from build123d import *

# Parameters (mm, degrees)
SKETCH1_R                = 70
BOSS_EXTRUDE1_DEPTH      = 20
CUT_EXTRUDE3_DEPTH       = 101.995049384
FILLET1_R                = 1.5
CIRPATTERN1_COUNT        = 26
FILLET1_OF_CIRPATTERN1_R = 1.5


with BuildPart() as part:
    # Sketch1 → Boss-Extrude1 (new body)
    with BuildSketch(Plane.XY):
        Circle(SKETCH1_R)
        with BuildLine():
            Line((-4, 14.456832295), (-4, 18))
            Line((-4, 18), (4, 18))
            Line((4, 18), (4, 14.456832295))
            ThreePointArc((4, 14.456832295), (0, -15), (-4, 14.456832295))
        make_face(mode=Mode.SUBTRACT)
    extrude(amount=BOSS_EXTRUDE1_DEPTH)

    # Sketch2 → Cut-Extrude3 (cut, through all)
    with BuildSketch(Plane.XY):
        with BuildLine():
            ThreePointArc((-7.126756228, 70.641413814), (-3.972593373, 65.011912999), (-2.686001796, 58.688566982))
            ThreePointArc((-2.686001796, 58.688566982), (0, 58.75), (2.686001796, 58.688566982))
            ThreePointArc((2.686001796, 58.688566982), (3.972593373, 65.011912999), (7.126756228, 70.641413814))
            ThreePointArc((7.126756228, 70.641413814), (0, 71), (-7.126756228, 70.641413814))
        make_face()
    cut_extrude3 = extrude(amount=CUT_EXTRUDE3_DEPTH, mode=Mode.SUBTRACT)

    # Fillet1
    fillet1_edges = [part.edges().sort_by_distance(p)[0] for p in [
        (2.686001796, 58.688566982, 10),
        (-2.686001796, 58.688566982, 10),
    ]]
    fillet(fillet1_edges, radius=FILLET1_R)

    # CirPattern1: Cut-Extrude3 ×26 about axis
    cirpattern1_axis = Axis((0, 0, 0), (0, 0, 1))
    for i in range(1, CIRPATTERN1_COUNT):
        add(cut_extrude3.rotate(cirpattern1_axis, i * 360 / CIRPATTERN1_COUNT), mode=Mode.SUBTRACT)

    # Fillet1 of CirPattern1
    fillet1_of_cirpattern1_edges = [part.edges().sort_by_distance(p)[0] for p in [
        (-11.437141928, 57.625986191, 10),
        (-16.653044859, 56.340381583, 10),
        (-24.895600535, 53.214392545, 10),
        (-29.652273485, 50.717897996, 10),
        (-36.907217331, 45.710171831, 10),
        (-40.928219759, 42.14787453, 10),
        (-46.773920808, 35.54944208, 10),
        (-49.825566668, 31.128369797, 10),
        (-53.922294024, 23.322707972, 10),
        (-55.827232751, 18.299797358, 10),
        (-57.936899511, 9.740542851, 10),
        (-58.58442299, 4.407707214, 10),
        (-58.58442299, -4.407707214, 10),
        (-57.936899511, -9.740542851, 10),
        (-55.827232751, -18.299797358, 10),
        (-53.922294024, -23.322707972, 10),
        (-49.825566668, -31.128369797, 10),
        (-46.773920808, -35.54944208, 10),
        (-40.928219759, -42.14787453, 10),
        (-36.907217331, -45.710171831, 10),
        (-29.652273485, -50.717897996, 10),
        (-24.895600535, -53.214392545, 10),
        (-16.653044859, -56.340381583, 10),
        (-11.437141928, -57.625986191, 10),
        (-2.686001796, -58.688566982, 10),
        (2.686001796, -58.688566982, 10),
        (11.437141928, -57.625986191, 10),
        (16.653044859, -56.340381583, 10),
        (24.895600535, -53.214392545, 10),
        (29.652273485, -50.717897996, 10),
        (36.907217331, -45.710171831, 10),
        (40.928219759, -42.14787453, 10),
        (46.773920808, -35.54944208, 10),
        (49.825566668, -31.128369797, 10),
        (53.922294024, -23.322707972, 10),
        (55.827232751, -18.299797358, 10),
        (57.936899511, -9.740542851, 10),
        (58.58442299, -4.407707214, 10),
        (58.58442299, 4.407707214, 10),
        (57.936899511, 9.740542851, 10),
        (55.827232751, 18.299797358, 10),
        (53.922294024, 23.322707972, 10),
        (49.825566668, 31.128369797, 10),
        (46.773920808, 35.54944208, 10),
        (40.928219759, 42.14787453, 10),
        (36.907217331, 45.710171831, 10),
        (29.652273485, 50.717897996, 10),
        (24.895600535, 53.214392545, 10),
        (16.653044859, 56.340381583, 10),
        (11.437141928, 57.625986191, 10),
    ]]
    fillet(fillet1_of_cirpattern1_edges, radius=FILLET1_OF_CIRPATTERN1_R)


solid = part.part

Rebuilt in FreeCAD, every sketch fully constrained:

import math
import FreeCAD as App
import Part
import Sketcher
from FreeCAD import Vector
Q = App.Units.Quantity


def edges_at(feature, points):
    """Names of the edges that pass closest to the given points."""
    edges = feature.Shape.Edges
    near = lambda p: min(range(len(edges)), key=lambda i: edges[i].distToShape(Part.Vertex(*p))[0])
    return sorted({f"Edge{near(p) + 1}" for p in points})

doc = App.newDocument("Part")
body = doc.addObject("PartDesign::Body", "Body")

# Sketch on XY plane
sketch1 = body.newObject("Sketcher::SketchObject", "Sketch")
sketch1.AttachmentSupport = (doc.getObject("XY_Plane"), [""])
sketch1.MapMode = "FlatFace"
sketch1.addGeometry([
    Part.Circle(Vector(0, 0, 0), Vector(0, 0, 1), 70),  # 0
    Part.ArcOfCircle(Part.Circle(Vector(0, 0, 0), Vector(0, 0, 1), 15), math.radians(105), math.radians(435)),  # 1
    Part.LineSegment(Vector(-4, 14.5, 0), Vector(-4, 18, 0)),  # 2
    Part.LineSegment(Vector(-4, 18, 0), Vector(4, 18, 0)),  # 3
    Part.LineSegment(Vector(4, 18, 0), Vector(4, 14.5, 0)),  # 4
], False)
sketch1.addConstraint([
    Sketcher.Constraint("Coincident", 1, 1, 2, 1),
    Sketcher.Constraint("Coincident", 2, 2, 3, 1),
    Sketcher.Constraint("Coincident", 3, 2, 4, 1),
    Sketcher.Constraint("Coincident", 4, 2, 1, 2),
    Sketcher.Constraint("Vertical", 2),
    Sketcher.Constraint("Horizontal", 3),
    Sketcher.Constraint("Vertical", 4),
    Sketcher.Constraint("Coincident", 0, 3, -1, 1),
    Sketcher.Constraint("Coincident", 1, 3, -1, 1),
    Sketcher.Constraint("Horizontal", 1, 1, 4, 2),
    Sketcher.Constraint("Diameter", 0, Q("140 mm")),
    Sketcher.Constraint("Radius", 1, Q("15 mm")),
    Sketcher.Constraint("DistanceX", 3, 1, 3, 2, Q("8 mm")),
    Sketcher.Constraint("DistanceY", -1, 1, 2, 2, Q("18 mm")),
])
pad1 = body.newObject("PartDesign::Pad", "Pad")
pad1.Profile = sketch1
pad1.Length = 20

# Sketch on XY plane
sketch2 = body.newObject("Sketcher::SketchObject", "Sketch001")
sketch2.AttachmentSupport = (doc.getObject("XY_Plane"), [""])
sketch2.MapMode = "FlatFace"
sketch2.addGeometry([
    Part.ArcOfCircle(Part.Circle(Vector(-24, 58, 0), Vector(0, 0, 1), 21), math.radians(3), math.radians(38)),
    Part.ArcOfCircle(Part.Circle(Vector(0, 0, 0), Vector(0, 0, 1), 59), math.radians(87.38), math.radians(92.62)),
    Part.ArcOfCircle(Part.Circle(Vector(24, 58, 0), Vector(0, 0, 1), 21), math.radians(142), math.radians(177)),
    Part.ArcOfCircle(Part.Circle(Vector(0, 0, 0), Vector(0, 0, 1), 71), math.radians(84.24), math.radians(95.76)),
], False)
sketch2.addConstraint([
    Sketcher.Constraint("Coincident", 0, 1, 1, 2),
    Sketcher.Constraint("Coincident", 1, 1, 2, 2),
    Sketcher.Constraint("Coincident", 2, 1, 3, 1),
    Sketcher.Constraint("Coincident", 3, 2, 0, 2),
    Sketcher.Constraint("Coincident", 1, 3, -1, 1),
    Sketcher.Constraint("Coincident", 3, 3, -1, 1),
    Sketcher.Constraint("Equal", 0, 2),
    Sketcher.Constraint("Symmetric", 0, 3, 2, 3, -2),
    Sketcher.Constraint("Radius", 3, Q("71 mm")),
    Sketcher.Constraint("Radius", 1, Q("58.75 mm")),
    Sketcher.Constraint("Radius", 0, Q("20.900519 mm")),
    Sketcher.Constraint("DistanceX", 0, 1, -1, 1, Q("2.686002 mm")),
    Sketcher.Constraint("DistanceY", 2, 3, 2, 1, Q("12.908401 mm")),
])
pocket1 = body.newObject("PartDesign::Pocket", "Pocket")
pocket1.Profile = sketch2
pocket1.Type = "ThroughAll"
pocket1.Reversed = True
doc.recompute()

fillet = body.newObject("PartDesign::Fillet", "Fillet")
fillet.Base = (pocket1, edges_at(pocket1, [(2.686, 58.689, 10), (-2.686, 58.689, 10)]))
fillet.Radius = 1.5
doc.recompute()

polarpattern = body.newObject("PartDesign::PolarPattern", "PolarPattern")
polarpattern.Originals = [pocket1]
polarpattern.Axis = (doc.getObject("Z_Axis"), [""])
polarpattern.Angle = 360
polarpattern.Occurrences = 26
body.Tip = polarpattern
doc.recompute()

fillet2 = body.newObject("PartDesign::Fillet", "Fillet001")
fillet2.Base = (polarpattern, edges_at(polarpattern, [
    (-11.437, 57.626, 10),
    (-16.653, 56.34, 10),
    (-24.896, 53.214, 10),
    (-29.652, 50.718, 10),
    (-36.907, 45.71, 10),
    (-40.928, 42.148, 10),
    (-46.774, 35.549, 10),
    (-49.826, 31.128, 10),
    (-53.922, 23.323, 10),
    (-55.827, 18.3, 10),
    (-57.937, 9.741, 10),
    (-58.584, 4.408, 10),
    (-58.584, -4.408, 10),
    (-57.937, -9.741, 10),
    (-55.827, -18.3, 10),
    (-53.922, -23.323, 10),
    (-49.826, -31.128, 10),
    (-46.774, -35.549, 10),
    (-40.928, -42.148, 10),
    (-36.907, -45.71, 10),
    (-29.652, -50.718, 10),
    (-24.896, -53.214, 10),
    (-16.653, -56.34, 10),
    (-11.437, -57.626, 10),
    (-2.686, -58.689, 10),
    (2.686, -58.689, 10),
    (11.437, -57.626, 10),
    (16.653, -56.34, 10),
    (24.896, -53.214, 10),
    (29.652, -50.718, 10),
    (36.907, -45.71, 10),
    (40.928, -42.148, 10),
    (46.774, -35.549, 10),
    (49.826, -31.128, 10),
    (53.922, -23.323, 10),
    (55.827, -18.3, 10),
    (57.937, -9.741, 10),
    (58.584, -4.408, 10),
    (58.584, 4.408, 10),
    (57.937, 9.741, 10),
    (55.827, 18.3, 10),
    (53.922, 23.323, 10),
    (49.826, 31.128, 10),
    (46.774, 35.549, 10),
    (40.928, 42.148, 10),
    (36.907, 45.71, 10),
    (29.652, 50.718, 10),
    (24.896, 53.214, 10),
    (16.653, 56.34, 10),
    (11.437, 57.626, 10),
]))
fillet2.Radius = 1.5

doc.recompute()
